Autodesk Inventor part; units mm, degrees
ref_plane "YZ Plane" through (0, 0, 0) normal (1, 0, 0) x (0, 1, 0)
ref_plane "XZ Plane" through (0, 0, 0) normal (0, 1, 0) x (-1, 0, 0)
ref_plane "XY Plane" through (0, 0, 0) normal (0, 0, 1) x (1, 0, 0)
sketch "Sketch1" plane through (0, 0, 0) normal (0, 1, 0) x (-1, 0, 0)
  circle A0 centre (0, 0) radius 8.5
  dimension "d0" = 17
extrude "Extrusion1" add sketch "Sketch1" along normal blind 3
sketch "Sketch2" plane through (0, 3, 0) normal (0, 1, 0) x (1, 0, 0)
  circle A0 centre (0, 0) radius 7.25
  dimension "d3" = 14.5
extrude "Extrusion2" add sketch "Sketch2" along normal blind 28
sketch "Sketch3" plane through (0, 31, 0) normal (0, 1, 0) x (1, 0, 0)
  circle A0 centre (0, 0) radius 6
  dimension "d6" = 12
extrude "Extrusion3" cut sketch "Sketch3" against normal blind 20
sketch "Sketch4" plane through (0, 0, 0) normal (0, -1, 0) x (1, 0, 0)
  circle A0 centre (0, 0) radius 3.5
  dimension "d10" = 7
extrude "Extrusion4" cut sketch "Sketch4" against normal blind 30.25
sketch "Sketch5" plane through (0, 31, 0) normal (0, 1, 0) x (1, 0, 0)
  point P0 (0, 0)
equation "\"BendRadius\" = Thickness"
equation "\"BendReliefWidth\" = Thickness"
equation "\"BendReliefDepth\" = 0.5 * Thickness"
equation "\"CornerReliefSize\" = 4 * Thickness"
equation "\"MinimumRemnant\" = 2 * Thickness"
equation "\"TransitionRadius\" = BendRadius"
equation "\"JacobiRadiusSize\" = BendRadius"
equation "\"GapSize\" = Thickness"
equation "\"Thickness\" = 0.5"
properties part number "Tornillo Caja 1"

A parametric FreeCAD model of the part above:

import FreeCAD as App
import Part
import Sketcher
from FreeCAD import Vector
Q = App.Units.Quantity

doc = App.newDocument("Part")
body = doc.addObject("PartDesign::Body", "Body")

sketch1 = doc.addObject("Sketcher::SketchObject", "Sketch")
body.addObject(sketch1)
sketch1.AttachmentSupport = (doc.XZ_Plane, [""])
sketch1.MapMode = "FlatFace"
sketch1.addGeometry(Part.Circle(Vector(0, 0, 0), Vector(0, 0, 1), 8), False)
sketch1.addConstraint([
    Sketcher.Constraint("Coincident", 0, 3, -1, 1),
    Sketcher.Constraint("Diameter", 0, Q("17 mm")),
])
pad1 = doc.addObject("PartDesign::Pad", "Pad")
body.addObject(pad1)
pad1.Profile = sketch1
pad1.Length = 3
pad1.Reversed = True

sketch2 = doc.addObject("Sketcher::SketchObject", "Sketch001")
body.addObject(sketch2)
sketch2.AttachmentSupport = (doc.XZ_Plane, [""])
sketch2.MapMode = "FlatFace"
sketch2.AttachmentOffset = App.Placement(Vector(0, 0, -3), App.Rotation())
sketch2.addGeometry(Part.Circle(Vector(0, 0, 0), Vector(0, 0, 1), 7), False)
sketch2.addConstraint([
    Sketcher.Constraint("Coincident", 0, 3, -1, 1),
    Sketcher.Constraint("Diameter", 0, Q("14.5 mm")),
])
pad2 = doc.addObject("PartDesign::Pad", "Pad001")
body.addObject(pad2)
pad2.Profile = sketch2
pad2.Length = 28
pad2.Reversed = True

sketch3 = doc.addObject("Sketcher::SketchObject", "Sketch002")
body.addObject(sketch3)
sketch3.AttachmentSupport = (doc.XZ_Plane, [""])
sketch3.MapMode = "FlatFace"
sketch3.AttachmentOffset = App.Placement(Vector(0, 0, -31), App.Rotation())
sketch3.addGeometry(Part.Circle(Vector(0, 0, 0), Vector(0, 0, 1), 6), False)
sketch3.addConstraint([
    Sketcher.Constraint("Coincident", 0, 3, -1, 1),
    Sketcher.Constraint("Diameter", 0, Q("12 mm")),
])
pocket1 = doc.addObject("PartDesign::Pocket", "Pocket")
body.addObject(pocket1)
pocket1.Profile = sketch3
pocket1.Length = 20
pocket1.Reversed = True

sketch4 = doc.addObject("Sketcher::SketchObject", "Sketch003")
body.addObject(sketch4)
sketch4.AttachmentSupport = (doc.XZ_Plane, [""])
sketch4.MapMode = "FlatFace"
sketch4.addGeometry(Part.Circle(Vector(0, 0, 0), Vector(0, 0, 1), 3.5), False)
sketch4.addConstraint([
    Sketcher.Constraint("Coincident", 0, 3, -1, 1),
    Sketcher.Constraint("Diameter", 0, Q("7 mm")),
])
pocket2 = doc.addObject("PartDesign::Pocket", "Pocket001")
body.addObject(pocket2)
pocket2.Profile = sketch4
pocket2.Length = 30.25

doc.recompute()
